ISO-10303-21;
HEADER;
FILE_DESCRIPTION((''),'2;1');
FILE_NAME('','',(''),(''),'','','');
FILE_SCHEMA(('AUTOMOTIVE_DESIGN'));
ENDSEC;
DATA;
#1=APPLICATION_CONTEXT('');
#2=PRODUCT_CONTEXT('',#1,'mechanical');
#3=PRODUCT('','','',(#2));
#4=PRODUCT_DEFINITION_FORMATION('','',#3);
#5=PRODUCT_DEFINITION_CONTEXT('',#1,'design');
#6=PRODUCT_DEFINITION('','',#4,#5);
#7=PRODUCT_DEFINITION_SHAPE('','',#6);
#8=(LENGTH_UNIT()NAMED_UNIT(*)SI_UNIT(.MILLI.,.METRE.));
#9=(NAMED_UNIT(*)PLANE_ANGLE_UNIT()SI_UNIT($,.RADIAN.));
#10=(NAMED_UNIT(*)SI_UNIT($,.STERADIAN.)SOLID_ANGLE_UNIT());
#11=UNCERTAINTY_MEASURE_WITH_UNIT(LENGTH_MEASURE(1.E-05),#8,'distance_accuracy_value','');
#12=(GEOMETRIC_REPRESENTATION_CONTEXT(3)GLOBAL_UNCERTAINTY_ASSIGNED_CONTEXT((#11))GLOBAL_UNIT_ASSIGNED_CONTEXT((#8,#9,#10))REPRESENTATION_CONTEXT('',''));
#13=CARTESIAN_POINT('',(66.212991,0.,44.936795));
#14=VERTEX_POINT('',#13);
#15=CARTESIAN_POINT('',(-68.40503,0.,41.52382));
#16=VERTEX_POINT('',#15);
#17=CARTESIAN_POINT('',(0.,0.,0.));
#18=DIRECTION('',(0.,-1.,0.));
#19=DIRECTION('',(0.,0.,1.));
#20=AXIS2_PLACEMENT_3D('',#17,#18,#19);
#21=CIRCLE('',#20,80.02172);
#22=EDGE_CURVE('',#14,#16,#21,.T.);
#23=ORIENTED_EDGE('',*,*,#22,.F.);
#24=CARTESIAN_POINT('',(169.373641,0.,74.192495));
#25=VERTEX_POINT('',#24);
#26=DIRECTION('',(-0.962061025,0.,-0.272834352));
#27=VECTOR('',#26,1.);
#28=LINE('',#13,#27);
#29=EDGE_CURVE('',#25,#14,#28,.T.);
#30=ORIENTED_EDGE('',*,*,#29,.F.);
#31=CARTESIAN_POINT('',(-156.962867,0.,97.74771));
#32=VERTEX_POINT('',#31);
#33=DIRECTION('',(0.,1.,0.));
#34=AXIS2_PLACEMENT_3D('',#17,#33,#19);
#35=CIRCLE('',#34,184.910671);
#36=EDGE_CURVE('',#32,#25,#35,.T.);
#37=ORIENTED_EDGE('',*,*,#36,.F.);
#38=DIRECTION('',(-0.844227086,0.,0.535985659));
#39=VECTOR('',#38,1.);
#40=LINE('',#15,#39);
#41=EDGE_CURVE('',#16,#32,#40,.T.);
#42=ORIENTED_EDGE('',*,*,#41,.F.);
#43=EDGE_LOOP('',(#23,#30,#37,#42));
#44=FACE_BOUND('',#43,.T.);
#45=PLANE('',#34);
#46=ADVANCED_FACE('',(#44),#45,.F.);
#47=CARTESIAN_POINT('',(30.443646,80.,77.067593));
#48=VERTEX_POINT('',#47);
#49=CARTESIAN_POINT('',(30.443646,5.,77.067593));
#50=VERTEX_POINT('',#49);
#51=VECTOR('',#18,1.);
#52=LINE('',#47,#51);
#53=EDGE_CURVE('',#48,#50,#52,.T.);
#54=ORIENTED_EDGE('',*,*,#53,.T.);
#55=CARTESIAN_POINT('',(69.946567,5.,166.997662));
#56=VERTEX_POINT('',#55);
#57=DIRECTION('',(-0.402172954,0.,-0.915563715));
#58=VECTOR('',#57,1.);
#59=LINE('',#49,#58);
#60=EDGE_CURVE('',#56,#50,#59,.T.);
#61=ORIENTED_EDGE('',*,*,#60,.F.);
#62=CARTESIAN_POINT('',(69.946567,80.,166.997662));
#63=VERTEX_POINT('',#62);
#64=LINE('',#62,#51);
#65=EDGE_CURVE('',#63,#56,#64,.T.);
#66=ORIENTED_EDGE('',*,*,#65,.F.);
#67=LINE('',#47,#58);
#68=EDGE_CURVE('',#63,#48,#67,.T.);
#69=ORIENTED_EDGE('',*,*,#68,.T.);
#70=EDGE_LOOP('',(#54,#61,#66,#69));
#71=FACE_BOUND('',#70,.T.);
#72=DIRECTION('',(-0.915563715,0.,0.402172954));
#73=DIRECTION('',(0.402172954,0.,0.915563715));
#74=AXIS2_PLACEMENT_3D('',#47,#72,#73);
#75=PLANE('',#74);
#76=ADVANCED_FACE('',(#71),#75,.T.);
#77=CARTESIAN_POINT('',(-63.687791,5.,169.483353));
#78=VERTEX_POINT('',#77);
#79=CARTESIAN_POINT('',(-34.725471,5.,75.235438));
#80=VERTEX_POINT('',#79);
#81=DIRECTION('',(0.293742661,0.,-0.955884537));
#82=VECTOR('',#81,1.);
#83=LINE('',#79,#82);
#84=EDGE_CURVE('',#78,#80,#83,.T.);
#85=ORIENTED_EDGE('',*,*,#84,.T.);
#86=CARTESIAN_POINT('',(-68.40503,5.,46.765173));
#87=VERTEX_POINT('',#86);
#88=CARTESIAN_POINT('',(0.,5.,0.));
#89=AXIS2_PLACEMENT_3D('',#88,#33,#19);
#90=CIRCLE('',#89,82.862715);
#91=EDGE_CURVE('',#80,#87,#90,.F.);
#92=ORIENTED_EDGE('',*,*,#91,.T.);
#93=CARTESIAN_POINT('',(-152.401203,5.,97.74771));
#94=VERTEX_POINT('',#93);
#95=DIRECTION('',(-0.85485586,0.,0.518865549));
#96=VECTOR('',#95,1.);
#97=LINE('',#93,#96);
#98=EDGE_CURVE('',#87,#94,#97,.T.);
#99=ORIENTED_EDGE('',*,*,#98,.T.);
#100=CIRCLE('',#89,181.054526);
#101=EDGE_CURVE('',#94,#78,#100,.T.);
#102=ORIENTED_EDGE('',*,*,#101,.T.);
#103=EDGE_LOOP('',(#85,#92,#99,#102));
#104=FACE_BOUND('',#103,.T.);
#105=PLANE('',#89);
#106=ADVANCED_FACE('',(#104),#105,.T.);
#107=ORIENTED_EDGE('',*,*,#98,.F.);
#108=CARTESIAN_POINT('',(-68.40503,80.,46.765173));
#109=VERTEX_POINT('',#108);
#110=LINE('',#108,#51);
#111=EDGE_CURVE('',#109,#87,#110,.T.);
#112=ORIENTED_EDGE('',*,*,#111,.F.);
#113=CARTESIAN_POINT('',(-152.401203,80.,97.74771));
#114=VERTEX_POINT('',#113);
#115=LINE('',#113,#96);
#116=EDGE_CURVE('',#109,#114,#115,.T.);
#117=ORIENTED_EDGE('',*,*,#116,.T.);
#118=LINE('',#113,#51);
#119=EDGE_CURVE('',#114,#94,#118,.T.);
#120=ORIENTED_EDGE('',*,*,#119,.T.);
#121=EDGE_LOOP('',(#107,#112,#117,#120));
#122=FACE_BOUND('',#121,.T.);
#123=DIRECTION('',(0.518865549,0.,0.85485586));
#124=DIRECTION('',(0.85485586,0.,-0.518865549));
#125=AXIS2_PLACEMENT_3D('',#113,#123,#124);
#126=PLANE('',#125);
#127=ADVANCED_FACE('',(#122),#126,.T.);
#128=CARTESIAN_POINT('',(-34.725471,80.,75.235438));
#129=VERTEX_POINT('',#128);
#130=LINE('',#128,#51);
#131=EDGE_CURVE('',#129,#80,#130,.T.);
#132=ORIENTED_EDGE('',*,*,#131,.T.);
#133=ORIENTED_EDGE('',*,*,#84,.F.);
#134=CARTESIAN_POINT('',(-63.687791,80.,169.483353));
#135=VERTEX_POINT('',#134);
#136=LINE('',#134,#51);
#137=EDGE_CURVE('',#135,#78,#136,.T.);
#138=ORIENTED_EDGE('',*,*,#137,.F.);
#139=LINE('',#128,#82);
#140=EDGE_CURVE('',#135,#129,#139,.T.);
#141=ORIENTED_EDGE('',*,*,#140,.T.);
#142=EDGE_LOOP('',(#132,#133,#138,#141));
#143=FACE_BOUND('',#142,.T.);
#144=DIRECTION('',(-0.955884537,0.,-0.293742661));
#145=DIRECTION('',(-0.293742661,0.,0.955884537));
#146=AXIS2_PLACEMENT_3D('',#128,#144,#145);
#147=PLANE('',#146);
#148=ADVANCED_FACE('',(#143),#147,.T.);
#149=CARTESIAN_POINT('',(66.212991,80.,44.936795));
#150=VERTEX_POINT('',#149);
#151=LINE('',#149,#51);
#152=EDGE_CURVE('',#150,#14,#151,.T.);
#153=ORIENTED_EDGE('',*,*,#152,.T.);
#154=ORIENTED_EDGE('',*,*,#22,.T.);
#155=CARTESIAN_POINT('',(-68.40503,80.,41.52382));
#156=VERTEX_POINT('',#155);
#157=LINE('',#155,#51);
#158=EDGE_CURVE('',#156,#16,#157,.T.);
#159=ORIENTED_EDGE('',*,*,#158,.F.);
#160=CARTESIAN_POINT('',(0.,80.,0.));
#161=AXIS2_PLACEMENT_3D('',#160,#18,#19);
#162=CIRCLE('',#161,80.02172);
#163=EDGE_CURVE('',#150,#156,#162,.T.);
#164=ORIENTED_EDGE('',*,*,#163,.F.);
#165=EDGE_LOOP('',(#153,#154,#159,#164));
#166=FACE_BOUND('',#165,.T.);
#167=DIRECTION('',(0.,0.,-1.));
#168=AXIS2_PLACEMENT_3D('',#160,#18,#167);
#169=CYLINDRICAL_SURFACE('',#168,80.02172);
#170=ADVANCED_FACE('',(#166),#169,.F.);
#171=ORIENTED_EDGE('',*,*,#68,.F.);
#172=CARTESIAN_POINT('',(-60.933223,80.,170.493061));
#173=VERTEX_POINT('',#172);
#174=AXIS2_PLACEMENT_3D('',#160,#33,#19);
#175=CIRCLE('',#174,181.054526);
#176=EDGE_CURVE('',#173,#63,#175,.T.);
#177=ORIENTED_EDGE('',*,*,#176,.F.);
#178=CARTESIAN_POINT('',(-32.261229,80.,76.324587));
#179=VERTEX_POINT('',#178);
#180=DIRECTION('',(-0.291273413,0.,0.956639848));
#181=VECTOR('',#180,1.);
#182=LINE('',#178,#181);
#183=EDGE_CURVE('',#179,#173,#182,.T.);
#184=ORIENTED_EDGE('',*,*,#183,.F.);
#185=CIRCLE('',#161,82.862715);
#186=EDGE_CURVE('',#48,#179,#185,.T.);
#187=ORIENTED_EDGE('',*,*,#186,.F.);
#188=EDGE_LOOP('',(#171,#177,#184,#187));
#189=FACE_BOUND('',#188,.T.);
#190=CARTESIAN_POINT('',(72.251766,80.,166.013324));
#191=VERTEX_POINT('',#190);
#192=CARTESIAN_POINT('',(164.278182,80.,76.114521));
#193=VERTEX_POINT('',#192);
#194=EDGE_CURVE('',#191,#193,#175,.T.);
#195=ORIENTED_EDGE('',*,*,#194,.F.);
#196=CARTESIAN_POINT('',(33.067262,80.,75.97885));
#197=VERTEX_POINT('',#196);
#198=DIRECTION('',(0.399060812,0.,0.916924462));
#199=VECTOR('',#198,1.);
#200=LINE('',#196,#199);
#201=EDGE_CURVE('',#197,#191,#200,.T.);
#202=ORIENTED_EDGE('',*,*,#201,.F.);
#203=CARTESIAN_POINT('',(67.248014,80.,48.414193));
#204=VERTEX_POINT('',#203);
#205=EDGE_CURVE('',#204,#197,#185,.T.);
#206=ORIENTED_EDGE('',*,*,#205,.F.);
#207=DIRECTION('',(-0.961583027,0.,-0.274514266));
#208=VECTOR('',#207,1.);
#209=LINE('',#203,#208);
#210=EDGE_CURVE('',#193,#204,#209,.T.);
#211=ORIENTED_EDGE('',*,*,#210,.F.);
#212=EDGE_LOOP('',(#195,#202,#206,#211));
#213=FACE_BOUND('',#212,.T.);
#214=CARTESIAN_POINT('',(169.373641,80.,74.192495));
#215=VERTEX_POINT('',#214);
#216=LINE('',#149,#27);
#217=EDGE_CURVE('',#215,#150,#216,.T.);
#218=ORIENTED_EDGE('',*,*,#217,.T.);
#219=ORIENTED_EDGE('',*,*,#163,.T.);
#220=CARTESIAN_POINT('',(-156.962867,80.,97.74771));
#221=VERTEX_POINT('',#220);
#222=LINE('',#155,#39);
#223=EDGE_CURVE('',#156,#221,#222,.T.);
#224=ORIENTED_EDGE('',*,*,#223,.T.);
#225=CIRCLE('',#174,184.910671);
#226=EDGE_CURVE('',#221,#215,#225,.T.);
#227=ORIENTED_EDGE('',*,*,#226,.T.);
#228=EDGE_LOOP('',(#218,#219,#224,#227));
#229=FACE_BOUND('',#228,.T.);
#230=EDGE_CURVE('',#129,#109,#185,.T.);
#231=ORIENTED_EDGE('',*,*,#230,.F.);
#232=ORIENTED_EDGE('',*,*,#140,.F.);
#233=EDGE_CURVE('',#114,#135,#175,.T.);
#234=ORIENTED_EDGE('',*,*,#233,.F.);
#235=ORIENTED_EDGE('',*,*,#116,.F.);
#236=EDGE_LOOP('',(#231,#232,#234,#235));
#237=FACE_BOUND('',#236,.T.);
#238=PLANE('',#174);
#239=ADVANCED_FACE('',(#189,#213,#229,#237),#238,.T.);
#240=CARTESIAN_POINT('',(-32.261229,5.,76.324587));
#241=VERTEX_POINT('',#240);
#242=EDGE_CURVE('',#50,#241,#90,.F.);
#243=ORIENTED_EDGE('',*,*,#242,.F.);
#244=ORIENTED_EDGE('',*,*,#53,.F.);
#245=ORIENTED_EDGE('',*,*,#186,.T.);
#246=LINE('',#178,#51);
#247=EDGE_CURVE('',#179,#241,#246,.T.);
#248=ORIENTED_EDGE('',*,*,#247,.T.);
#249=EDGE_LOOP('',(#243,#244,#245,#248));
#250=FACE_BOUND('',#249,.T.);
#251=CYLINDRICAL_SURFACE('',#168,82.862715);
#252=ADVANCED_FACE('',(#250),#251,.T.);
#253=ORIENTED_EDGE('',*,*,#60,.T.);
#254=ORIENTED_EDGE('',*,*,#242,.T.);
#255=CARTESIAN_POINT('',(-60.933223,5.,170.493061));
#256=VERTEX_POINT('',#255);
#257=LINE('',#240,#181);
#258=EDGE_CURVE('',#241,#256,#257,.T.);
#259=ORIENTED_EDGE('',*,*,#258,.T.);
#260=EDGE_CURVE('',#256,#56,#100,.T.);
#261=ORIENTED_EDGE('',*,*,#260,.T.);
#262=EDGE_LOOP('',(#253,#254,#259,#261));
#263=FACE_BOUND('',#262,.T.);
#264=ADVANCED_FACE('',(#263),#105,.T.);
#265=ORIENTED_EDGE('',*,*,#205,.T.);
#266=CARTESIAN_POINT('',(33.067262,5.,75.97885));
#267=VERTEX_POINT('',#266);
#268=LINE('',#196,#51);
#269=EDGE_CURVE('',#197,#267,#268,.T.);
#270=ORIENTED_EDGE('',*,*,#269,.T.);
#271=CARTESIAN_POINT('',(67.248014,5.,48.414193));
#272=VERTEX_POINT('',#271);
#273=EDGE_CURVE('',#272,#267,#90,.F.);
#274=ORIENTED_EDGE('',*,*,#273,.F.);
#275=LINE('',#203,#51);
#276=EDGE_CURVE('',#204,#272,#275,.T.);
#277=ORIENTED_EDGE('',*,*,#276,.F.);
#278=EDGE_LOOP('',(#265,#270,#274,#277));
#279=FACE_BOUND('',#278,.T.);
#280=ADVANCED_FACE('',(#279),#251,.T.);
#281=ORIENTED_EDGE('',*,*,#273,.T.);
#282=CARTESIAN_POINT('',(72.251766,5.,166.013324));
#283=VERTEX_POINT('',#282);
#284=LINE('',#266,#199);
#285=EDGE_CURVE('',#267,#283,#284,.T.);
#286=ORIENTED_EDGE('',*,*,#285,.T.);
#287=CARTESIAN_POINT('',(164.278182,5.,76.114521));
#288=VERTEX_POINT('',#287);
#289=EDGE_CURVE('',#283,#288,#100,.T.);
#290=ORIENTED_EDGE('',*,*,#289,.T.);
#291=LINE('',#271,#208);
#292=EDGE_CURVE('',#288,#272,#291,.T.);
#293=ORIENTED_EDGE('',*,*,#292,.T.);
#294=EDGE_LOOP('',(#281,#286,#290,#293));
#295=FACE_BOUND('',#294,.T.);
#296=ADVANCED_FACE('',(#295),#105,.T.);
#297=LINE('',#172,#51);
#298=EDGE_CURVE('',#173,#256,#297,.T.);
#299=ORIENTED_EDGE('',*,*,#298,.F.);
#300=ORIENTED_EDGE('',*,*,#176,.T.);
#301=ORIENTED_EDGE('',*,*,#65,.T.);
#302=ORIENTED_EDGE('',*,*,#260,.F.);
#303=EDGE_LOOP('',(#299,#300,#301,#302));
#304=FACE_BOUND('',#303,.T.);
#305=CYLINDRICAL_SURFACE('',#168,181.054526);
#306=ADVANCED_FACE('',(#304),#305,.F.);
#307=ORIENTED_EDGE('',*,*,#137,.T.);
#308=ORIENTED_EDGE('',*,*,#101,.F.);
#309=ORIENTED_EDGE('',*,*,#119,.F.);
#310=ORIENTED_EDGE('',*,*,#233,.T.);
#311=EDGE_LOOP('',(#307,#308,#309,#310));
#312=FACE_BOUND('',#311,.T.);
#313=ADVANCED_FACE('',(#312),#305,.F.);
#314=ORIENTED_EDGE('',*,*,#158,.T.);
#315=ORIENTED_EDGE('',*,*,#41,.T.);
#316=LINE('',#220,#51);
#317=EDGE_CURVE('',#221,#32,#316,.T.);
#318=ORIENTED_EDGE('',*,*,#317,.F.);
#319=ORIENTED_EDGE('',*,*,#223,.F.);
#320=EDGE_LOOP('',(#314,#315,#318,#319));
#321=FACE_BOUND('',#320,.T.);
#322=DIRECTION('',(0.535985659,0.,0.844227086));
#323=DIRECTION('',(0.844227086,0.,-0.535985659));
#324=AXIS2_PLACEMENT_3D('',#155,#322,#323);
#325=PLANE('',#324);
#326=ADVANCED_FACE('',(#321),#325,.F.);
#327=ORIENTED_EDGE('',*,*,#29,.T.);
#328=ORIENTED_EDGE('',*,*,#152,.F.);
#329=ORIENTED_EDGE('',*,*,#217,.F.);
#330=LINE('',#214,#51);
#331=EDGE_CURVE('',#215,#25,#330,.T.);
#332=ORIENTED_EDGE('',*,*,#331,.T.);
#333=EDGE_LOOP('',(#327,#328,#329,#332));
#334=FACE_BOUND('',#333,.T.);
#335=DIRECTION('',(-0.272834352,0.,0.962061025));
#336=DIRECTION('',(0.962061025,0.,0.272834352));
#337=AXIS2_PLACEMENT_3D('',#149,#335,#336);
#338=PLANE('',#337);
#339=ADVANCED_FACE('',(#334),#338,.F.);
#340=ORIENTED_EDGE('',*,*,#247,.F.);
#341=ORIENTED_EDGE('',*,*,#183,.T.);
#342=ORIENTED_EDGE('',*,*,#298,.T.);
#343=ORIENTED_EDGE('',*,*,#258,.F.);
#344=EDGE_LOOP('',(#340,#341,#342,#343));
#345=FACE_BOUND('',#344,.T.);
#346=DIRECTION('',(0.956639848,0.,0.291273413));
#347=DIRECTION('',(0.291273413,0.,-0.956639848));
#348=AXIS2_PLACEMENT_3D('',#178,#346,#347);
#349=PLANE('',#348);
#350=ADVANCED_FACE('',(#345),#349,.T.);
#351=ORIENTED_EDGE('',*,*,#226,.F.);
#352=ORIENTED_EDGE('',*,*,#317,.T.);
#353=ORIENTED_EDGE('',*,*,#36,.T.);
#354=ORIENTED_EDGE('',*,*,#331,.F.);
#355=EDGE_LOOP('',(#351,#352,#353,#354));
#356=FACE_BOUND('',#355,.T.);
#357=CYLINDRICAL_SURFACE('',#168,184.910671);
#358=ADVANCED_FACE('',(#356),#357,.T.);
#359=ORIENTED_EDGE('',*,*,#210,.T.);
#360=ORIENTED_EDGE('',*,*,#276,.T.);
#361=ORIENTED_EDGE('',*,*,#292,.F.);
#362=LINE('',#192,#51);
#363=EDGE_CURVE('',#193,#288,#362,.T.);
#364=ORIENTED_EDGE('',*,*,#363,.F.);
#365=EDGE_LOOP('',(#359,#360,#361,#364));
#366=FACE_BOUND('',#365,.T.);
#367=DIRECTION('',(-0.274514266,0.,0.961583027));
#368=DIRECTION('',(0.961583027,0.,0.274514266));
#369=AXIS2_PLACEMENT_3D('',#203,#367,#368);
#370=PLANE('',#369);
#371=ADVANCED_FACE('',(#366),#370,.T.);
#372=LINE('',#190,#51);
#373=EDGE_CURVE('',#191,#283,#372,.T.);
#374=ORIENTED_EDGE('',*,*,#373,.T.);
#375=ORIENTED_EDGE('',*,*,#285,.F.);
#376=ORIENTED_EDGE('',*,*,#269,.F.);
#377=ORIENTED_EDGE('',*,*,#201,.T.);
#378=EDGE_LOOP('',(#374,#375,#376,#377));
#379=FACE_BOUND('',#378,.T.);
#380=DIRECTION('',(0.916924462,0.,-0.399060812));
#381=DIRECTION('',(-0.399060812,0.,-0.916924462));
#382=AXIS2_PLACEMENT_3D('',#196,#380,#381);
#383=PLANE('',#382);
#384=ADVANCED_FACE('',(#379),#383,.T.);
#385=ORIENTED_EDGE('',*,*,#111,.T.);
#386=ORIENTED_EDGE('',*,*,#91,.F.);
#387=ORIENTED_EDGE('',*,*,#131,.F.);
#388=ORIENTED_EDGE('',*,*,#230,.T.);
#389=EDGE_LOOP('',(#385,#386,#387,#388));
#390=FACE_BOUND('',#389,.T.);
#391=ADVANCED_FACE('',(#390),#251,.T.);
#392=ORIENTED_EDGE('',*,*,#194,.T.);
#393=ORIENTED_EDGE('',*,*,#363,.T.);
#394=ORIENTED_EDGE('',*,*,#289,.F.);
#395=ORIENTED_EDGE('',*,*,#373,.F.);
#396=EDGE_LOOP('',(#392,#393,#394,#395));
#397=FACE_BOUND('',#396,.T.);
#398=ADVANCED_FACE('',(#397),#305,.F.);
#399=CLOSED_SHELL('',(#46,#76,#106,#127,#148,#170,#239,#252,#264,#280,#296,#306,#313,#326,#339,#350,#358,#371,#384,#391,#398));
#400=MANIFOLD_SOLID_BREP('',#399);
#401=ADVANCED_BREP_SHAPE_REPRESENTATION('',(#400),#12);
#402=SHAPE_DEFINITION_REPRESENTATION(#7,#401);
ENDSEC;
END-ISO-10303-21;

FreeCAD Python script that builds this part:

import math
import FreeCAD as App
import Part
import Sketcher

doc = App.newDocument("Part")
body = doc.addObject("PartDesign::Body", "Body")

# Sketch on XZ plane
sketch1 = body.newObject("Sketcher::SketchObject", "Sketch")
sketch1.AttachmentSupport = (doc.getObject("XZ_Plane"), [""])
sketch1.MapMode = "FlatFace"
sketch1.addGeometry([
    Part.LineSegment(App.Vector(-68, 42, 0), App.Vector(-157, 98, 0)),  # 0
    Part.ArcOfCircle(Part.Circle(App.Vector(0, 0, 0), App.Vector(0, 0, 1), 185), math.radians(24), math.radians(148)),  # 1
    Part.LineSegment(App.Vector(169, 74, 0), App.Vector(66, 45, 0)),  # 2
    Part.ArcOfCircle(Part.Circle(App.Vector(0, 0, 0), App.Vector(0, 0, 1), 80), math.radians(34), math.radians(149)),  # 3
    Part.ArcOfCircle(Part.Circle(App.Vector(0, 0, 0), App.Vector(0, 0, 1), 83), math.radians(68), math.radians(113)),  # 4
    Part.LineSegment(App.Vector(30, 77, 0), App.Vector(70, 167, 0)),  # 5
    Part.ArcOfCircle(Part.Circle(App.Vector(0, 0, 0), App.Vector(0, 0, 1), 181), math.radians(67), math.radians(110)),  # 6
    Part.LineSegment(App.Vector(-61, 170, 0), App.Vector(-32, 76, 0)),  # 7
    Part.ArcOfCircle(Part.Circle(App.Vector(0, 0, 0), App.Vector(0, 0, 1), 83), math.radians(115), math.radians(146)),  # 8
    Part.LineSegment(App.Vector(-35, 75, 0), App.Vector(-64, 169, 0)),  # 9
    Part.ArcOfCircle(Part.Circle(App.Vector(0, 0, 0), App.Vector(0, 0, 1), 181), math.radians(111), math.radians(147)),  # 10
    Part.LineSegment(App.Vector(-152, 98, 0), App.Vector(-68, 47, 0)),  # 11
    Part.ArcOfCircle(Part.Circle(App.Vector(0, 0, 0), App.Vector(0, 0, 1), 83), math.radians(36), math.radians(66)),  # 12
    Part.LineSegment(App.Vector(67, 48, 0), App.Vector(164, 76, 0)),  # 13
    Part.ArcOfCircle(Part.Circle(App.Vector(0, 0, 0), App.Vector(0, 0, 1), 181), math.radians(25), math.radians(66)),  # 14
    Part.LineSegment(App.Vector(72, 166, 0), App.Vector(33, 76, 0)),  # 15
], False)
sketch1.addConstraint([
    Sketcher.Constraint("Coincident", 0, 2, 1, 2),
    Sketcher.Constraint("Coincident", 1, 1, 2, 1),
    Sketcher.Constraint("Coincident", 2, 2, 3, 1),
    Sketcher.Constraint("Coincident", 3, 2, 0, 1),
    Sketcher.Constraint("Coincident", 4, 1, 5, 1),
    Sketcher.Constraint("Coincident", 5, 2, 6, 1),
    Sketcher.Constraint("Coincident", 6, 2, 7, 1),
    Sketcher.Constraint("Coincident", 7, 2, 4, 2),
    Sketcher.Constraint("Coincident", 8, 1, 9, 1),
    Sketcher.Constraint("Coincident", 9, 2, 10, 1),
    Sketcher.Constraint("Coincident", 10, 2, 11, 1),
    Sketcher.Constraint("Coincident", 11, 2, 8, 2),
    Sketcher.Constraint("Coincident", 12, 1, 13, 1),
    Sketcher.Constraint("Coincident", 13, 2, 14, 1),
    Sketcher.Constraint("Coincident", 14, 2, 15, 1),
    Sketcher.Constraint("Coincident", 15, 2, 12, 2),
    Sketcher.Constraint("Coincident", 1, 3, -1, 1),
    Sketcher.Constraint("Coincident", 3, 3, -1, 1),
    Sketcher.Constraint("Coincident", 4, 3, -1, 1),
    Sketcher.Constraint("Coincident", 6, 3, -1, 1),
    Sketcher.Constraint("Coincident", 8, 3, -1, 1),
    Sketcher.Constraint("Coincident", 10, 3, -1, 1),
    Sketcher.Constraint("Coincident", 12, 3, -1, 1),
    Sketcher.Constraint("Coincident", 14, 3, -1, 1),
    Sketcher.Constraint("Equal", 4, 8),
    Sketcher.Constraint("Equal", 6, 10),
    Sketcher.Constraint("Equal", 8, 12),
    Sketcher.Constraint("Equal", 10, 14),
    Sketcher.Constraint("Horizontal", 0, 2, 10, 2),
    Sketcher.Constraint("Vertical", 3, 2, 11, 2),
    Sketcher.Constraint("Radius", 1, 184.910671),
    Sketcher.Constraint("Radius", 3, 80.02172),
    Sketcher.Constraint("Radius", 4, 82.862715),
    Sketcher.Constraint("Radius", 6, 181.054526),
    Sketcher.Constraint("Distance", 2, 107.2288),
    Sketcher.Constraint("DistanceY", 2, 2, 4, 1, 32.130799),
    Sketcher.Constraint("DistanceY", 5, 2, 6, 2, 3.495398),
    Sketcher.Constraint("DistanceX", 3, 2, 7, 2, 36.143801),
    Sketcher.Constraint("DistanceY", 2, 2, 12, 1, 3.477398),
    Sketcher.Constraint("DistanceX", 5, 2, 14, 2, 2.305199),
    Sketcher.Constraint("DistanceY", -1, 1, 0, 2, 97.74771),
    Sketcher.Constraint("DistanceX", -1, 1, 1, 1, 169.373641),
    Sketcher.Constraint("DistanceX", 3, 2, -1, 1, 68.40503),
    Sketcher.Constraint("DistanceY", -1, 1, 6, 2, 170.493061),
    Sketcher.Constraint("DistanceX", 8, 1, -1, 1, 34.725471),
    Sketcher.Constraint("DistanceX", 9, 2, -1, 1, 63.687791),
    Sketcher.Constraint("DistanceY", -1, 1, 13, 2, 76.114521),
    Sketcher.Constraint("DistanceY", -1, 1, 15, 2, 75.97885),
])
pad1 = body.newObject("PartDesign::Pad", "Pad")
pad1.Profile = sketch1
pad1.Length = 80
pad1.Reversed = True

# Sketch on XZ plane
sketch2 = body.newObject("Sketcher::SketchObject", "Sketch001")
sketch2.AttachmentSupport = (doc.getObject("XZ_Plane"), [""])
sketch2.MapMode = "FlatFace"
sketch2.addGeometry([
    Part.LineSegment(App.Vector(-157, 98, 0), App.Vector(-68, 42, 0)),
    Part.ArcOfCircle(Part.Circle(App.Vector(0, 0, 0), App.Vector(0, 0, 1), 80), math.radians(34), math.radians(149)),
    Part.LineSegment(App.Vector(66, 45, 0), App.Vector(169, 74, 0)),
    Part.ArcOfCircle(Part.Circle(App.Vector(0, 0, 0), App.Vector(0, 0, 1), 185), math.radians(24), math.radians(148)),
], False)
sketch2.addConstraint([
    Sketcher.Constraint("Coincident", 0, 2, 1, 2),
    Sketcher.Constraint("Coincident", 1, 1, 2, 1),
    Sketcher.Constraint("Coincident", 2, 2, 3, 1),
    Sketcher.Constraint("Coincident", 3, 2, 0, 1),
    Sketcher.Constraint("Coincident", 1, 3, -1, 1),
    Sketcher.Constraint("Coincident", 3, 3, -1, 1),
    Sketcher.Constraint("Radius", 1, 80.02172),
    Sketcher.Constraint("Radius", 3, 184.910671),
    Sketcher.Constraint("Distance", 2, 107.2288),
    Sketcher.Constraint("DistanceY", 1, 1, 2, 2, 29.2557),
    Sketcher.Constraint("DistanceX", 0, 2, -1, 1, 68.40503),
    Sketcher.Constraint("DistanceY", -1, 1, 3, 2, 97.74771),
])
pad2 = body.newObject("PartDesign::Pad", "Pad001")
pad2.Profile = sketch2
pad2.Length = 5
pad2.Reversed = True

doc.recompute()
